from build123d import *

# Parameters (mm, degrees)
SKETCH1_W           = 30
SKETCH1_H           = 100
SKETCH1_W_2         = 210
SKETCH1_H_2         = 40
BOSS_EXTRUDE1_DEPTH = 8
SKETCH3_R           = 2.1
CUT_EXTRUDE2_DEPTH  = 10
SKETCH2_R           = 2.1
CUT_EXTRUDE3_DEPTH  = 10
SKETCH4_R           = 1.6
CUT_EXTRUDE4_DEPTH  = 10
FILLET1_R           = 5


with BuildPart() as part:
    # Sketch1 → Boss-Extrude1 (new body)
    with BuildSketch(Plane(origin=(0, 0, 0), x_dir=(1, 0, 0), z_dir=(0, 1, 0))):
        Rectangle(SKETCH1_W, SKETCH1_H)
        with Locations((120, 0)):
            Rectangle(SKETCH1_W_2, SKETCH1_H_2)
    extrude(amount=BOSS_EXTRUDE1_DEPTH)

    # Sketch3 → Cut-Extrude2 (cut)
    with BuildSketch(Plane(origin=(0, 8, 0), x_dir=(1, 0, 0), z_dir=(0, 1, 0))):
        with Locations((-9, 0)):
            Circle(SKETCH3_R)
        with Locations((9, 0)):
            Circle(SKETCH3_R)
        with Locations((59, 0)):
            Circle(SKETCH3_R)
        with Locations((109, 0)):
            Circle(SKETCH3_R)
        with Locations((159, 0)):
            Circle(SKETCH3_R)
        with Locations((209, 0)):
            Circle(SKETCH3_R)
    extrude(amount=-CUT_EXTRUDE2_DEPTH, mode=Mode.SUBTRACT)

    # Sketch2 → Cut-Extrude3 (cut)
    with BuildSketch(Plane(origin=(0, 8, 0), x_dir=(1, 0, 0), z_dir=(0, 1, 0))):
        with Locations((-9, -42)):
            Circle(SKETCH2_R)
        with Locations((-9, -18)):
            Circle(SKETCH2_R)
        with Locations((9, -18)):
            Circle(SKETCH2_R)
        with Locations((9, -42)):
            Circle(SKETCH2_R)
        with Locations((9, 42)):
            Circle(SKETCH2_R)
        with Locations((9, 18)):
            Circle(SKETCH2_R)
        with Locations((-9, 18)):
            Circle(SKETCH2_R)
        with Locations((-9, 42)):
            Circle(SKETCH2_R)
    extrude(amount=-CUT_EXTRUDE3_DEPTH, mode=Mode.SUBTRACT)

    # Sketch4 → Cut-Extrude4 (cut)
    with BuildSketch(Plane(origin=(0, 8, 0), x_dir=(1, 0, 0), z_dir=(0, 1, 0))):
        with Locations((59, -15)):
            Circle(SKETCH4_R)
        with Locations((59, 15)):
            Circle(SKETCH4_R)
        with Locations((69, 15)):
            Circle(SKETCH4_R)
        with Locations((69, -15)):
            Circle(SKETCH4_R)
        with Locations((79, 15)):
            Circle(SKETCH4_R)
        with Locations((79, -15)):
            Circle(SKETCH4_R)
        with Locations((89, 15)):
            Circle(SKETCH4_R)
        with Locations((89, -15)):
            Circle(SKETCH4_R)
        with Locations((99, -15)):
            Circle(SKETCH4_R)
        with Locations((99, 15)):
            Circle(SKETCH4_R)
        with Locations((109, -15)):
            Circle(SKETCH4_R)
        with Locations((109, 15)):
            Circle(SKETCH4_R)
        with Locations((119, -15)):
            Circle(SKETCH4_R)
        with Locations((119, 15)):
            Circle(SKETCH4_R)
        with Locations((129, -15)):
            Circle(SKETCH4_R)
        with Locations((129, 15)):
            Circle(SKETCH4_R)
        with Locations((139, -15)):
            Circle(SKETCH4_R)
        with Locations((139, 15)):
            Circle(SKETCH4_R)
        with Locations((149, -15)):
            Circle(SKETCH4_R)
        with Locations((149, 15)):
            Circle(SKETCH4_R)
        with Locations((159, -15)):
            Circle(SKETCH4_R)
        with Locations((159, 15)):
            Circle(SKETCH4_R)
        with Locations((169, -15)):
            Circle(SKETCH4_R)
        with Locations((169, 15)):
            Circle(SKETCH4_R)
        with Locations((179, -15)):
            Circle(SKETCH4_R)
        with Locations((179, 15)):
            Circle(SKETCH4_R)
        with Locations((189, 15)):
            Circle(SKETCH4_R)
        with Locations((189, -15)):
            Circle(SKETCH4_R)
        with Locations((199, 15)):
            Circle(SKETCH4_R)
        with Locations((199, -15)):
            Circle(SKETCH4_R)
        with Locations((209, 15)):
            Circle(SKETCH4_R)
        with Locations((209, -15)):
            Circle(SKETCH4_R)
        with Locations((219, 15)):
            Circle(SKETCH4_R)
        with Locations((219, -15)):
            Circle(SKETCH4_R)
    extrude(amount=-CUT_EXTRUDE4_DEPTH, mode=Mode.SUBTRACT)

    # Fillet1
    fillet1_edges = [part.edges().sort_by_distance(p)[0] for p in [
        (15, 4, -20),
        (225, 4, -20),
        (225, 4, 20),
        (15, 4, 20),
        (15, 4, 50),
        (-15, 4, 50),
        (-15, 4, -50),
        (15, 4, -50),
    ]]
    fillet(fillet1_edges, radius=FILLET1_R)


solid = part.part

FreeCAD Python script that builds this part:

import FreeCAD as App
import Part
import Sketcher
from FreeCAD import Vector


def edges_at(feature, points):
    """Names of the edges that pass closest to the given points."""
    edges = feature.Shape.Edges
    near = lambda p: min(range(len(edges)), key=lambda i: edges[i].distToShape(Part.Vertex(*p))[0])
    return sorted({f"Edge{near(p) + 1}" for p in points})

doc = App.newDocument("Part")
params = doc.addObject("Spreadsheet::Sheet", "Params")
for row, (alias, value) in enumerate([
    ("sketch1_width", "30 mm"),
    ("sketch1_width2", "210 mm"),
    ("sketch1_height", "100 mm"),
    ("pad1_length", "8 mm"),
    ("sketch2_diameter", "4.2 mm"),
    ("pocket1_length", "10 mm"),
    ("sketch3_diameter", "4.2 mm"),
    ("pocket2_length", "10 mm"),
    ("sketch4_diameter", "3.2 mm"),
    ("pocket3_length", "10 mm"),
    ("fillet_radius", "5 mm"),
], start=1):
    params.set(f"A{row}", alias)
    params.set(f"B{row}", "=" + value)
    params.setAlias(f"B{row}", alias)

body = doc.addObject("PartDesign::Body", "Body")

sketch1 = body.newObject("Sketcher::SketchObject", "Sketch")
sketch1.AttachmentSupport = (doc.getObject("XZ_Plane"), [""])
sketch1.MapMode = "FlatFace"
sketch1.addGeometry([
    Part.LineSegment(Vector(-15, -50, 0), Vector(-15, 50, 0)),
    Part.LineSegment(Vector(-15, 50, 0), Vector(15, 50, 0)),
    Part.LineSegment(Vector(15, 50, 0), Vector(15, 20, 0)),
    Part.LineSegment(Vector(15, 20, 0), Vector(225, 20, 0)),
    Part.LineSegment(Vector(225, 20, 0), Vector(225, -20, 0)),
    Part.LineSegment(Vector(225, -20, 0), Vector(15, -20, 0)),
    Part.LineSegment(Vector(15, -20, 0), Vector(15, -50, 0)),
    Part.LineSegment(Vector(15, -50, 0), Vector(-15, -50, 0)),
], False)
sketch1.addConstraint([
    Sketcher.Constraint("Coincident", 0, 2, 1, 1),
    Sketcher.Constraint("Coincident", 1, 2, 2, 1),
    Sketcher.Constraint("Coincident", 2, 2, 3, 1),
    Sketcher.Constraint("Coincident", 3, 2, 4, 1),
    Sketcher.Constraint("Coincident", 4, 2, 5, 1),
    Sketcher.Constraint("Coincident", 5, 2, 6, 1),
    Sketcher.Constraint("Coincident", 6, 2, 7, 1),
    Sketcher.Constraint("Coincident", 7, 2, 0, 1),
    Sketcher.Constraint("Vertical", 0),
    Sketcher.Constraint("Horizontal", 1),
    Sketcher.Constraint("Vertical", 2),
    Sketcher.Constraint("Horizontal", 3),
    Sketcher.Constraint("Vertical", 4),
    Sketcher.Constraint("Horizontal", 5),
    Sketcher.Constraint("Vertical", 6),
    Sketcher.Constraint("Horizontal", 7),
    Sketcher.Constraint("Symmetric", 0, 2, 6, 2, -1, 1),
    Sketcher.Constraint("Symmetric", 2, 2, 5, 2, -1),
    Sketcher.Constraint("Equal", 7, 2),
    Sketcher.Constraint("DistanceX", 1, 1, 1, 2, 30.0),
    Sketcher.Constraint("DistanceX", 3, 1, 3, 2, 210.0),
    Sketcher.Constraint("DistanceY", 0, 1, 0, 2, 100.0),
])
sketch1.setExpression("Constraints[19]", "Params.sketch1_width")
sketch1.setExpression("Constraints[20]", "Params.sketch1_width2")
sketch1.setExpression("Constraints[21]", "Params.sketch1_height")
pad1 = body.newObject("PartDesign::Pad", "Pad")
pad1.Profile = sketch1
pad1.setExpression("Length", "Params.pad1_length")
pad1.Reversed = True

sketch2 = body.newObject("Sketcher::SketchObject", "Sketch001")
sketch2.AttachmentSupport = (doc.getObject("XZ_Plane"), [""])
sketch2.MapMode = "FlatFace"
sketch2.AttachmentOffset = App.Placement(Vector(0, 0, -8), App.Rotation())
sketch2.addGeometry([
    Part.Circle(Vector(-9, 0, 0), Vector(0, 0, 1), 2.1),
    Part.Circle(Vector(9, 0, 0), Vector(0, 0, 1), 2.1),
    Part.Circle(Vector(59, 0, 0), Vector(0, 0, 1), 2.1),
    Part.Circle(Vector(109, 0, 0), Vector(0, 0, 1), 2.1),
    Part.Circle(Vector(159, 0, 0), Vector(0, 0, 1), 2.1),
    Part.Circle(Vector(209, 0, 0), Vector(0, 0, 1), 2.1),
], False)
sketch2.addConstraint([
    Sketcher.Constraint("Equal", 0, 1),
    Sketcher.Constraint("Equal", 1, 2),
    Sketcher.Constraint("Equal", 2, 3),
    Sketcher.Constraint("Equal", 3, 4),
    Sketcher.Constraint("Equal", 4, 5),
    Sketcher.Constraint("Symmetric", 0, 3, 1, 3, -1, 1),
    Sketcher.Constraint("PointOnObject", 0, 3, -1),
    Sketcher.Constraint("PointOnObject", 2, 3, -1),
    Sketcher.Constraint("PointOnObject", 3, 3, -1),
    Sketcher.Constraint("PointOnObject", 4, 3, -1),
    Sketcher.Constraint("PointOnObject", 5, 3, -1),
    Sketcher.Constraint("Diameter", 0, 4.2),
    Sketcher.Constraint("DistanceX", 0, 3, -1, 1, 9.0),
    Sketcher.Constraint("DistanceX", -1, 1, 2, 3, 59.0),
    Sketcher.Constraint("DistanceX", -1, 1, 3, 3, 109.0),
    Sketcher.Constraint("DistanceX", -1, 1, 4, 3, 159.0),
    Sketcher.Constraint("DistanceX", -1, 1, 5, 3, 209.0),
])
sketch2.setExpression("Constraints[11]", "Params.sketch2_diameter")
pocket1 = body.newObject("PartDesign::Pocket", "Pocket")
pocket1.Profile = sketch2
pocket1.setExpression("Length", "Params.pocket1_length")
pocket1.Reversed = True

sketch3 = body.newObject("Sketcher::SketchObject", "Sketch002")
sketch3.AttachmentSupport = (doc.getObject("XZ_Plane"), [""])
sketch3.MapMode = "FlatFace"
sketch3.AttachmentOffset = App.Placement(Vector(0, 0, -8), App.Rotation())
sketch3.addGeometry([
    Part.Circle(Vector(-9, 42, 0), Vector(0, 0, 1), 2.1),
    Part.Circle(Vector(-9, 18, 0), Vector(0, 0, 1), 2.1),
    Part.Circle(Vector(9, 18, 0), Vector(0, 0, 1), 2.1),
    Part.Circle(Vector(9, 42, 0), Vector(0, 0, 1), 2.1),
    Part.Circle(Vector(9, -42, 0), Vector(0, 0, 1), 2.1),
    Part.Circle(Vector(9, -18, 0), Vector(0, 0, 1), 2.1),
    Part.Circle(Vector(-9, -18, 0), Vector(0, 0, 1), 2.1),
    Part.Circle(Vector(-9, -42, 0), Vector(0, 0, 1), 2.1),
], False)
sketch3.addConstraint([
    Sketcher.Constraint("Equal", 0, 1),
    Sketcher.Constraint("Equal", 1, 2),
    Sketcher.Constraint("Equal", 2, 3),
    Sketcher.Constraint("Equal", 3, 4),
    Sketcher.Constraint("Equal", 4, 5),
    Sketcher.Constraint("Equal", 5, 6),
    Sketcher.Constraint("Equal", 6, 7),
    Sketcher.Constraint("Symmetric", 0, 3, 4, 3, -1, 1),
    Sketcher.Constraint("Symmetric", 1, 3, 5, 3, -1, 1),
    Sketcher.Constraint("Symmetric", 2, 3, 6, 3, -1, 1),
    Sketcher.Constraint("Symmetric", 3, 3, 7, 3, -1, 1),
    Sketcher.Constraint("Symmetric", 1, 3, 2, 3, -2),
    Sketcher.Constraint("Symmetric", 0, 3, 3, 3, -2),
    Sketcher.Constraint("Vertical", 0, 3, 1, 3),
    Sketcher.Constraint("Diameter", 0, 4.2),
    Sketcher.Constraint("DistanceX", 0, 3, -1, 1, 9.0),
    Sketcher.Constraint("DistanceY", -1, 1, 0, 3, 42.0),
    Sketcher.Constraint("DistanceY", -1, 1, 1, 3, 18.0),
])
sketch3.setExpression("Constraints[14]", "Params.sketch3_diameter")
pocket2 = body.newObject("PartDesign::Pocket", "Pocket001")
pocket2.Profile = sketch3
pocket2.setExpression("Length", "Params.pocket2_length")
pocket2.Reversed = True

sketch4 = body.newObject("Sketcher::SketchObject", "Sketch003")
sketch4.AttachmentSupport = (doc.getObject("XZ_Plane"), [""])
sketch4.MapMode = "FlatFace"
sketch4.AttachmentOffset = App.Placement(Vector(0, 0, -8), App.Rotation())
sketch4.addGeometry([
    Part.Circle(Vector(59, 15, 0), Vector(0, 0, 1), 1.6),
    Part.Circle(Vector(59, -15, 0), Vector(0, 0, 1), 1.6),
    Part.Circle(Vector(69, -15, 0), Vector(0, 0, 1), 1.6),
    Part.Circle(Vector(69, 15, 0), Vector(0, 0, 1), 1.6),
    Part.Circle(Vector(79, -15, 0), Vector(0, 0, 1), 1.6),
    Part.Circle(Vector(79, 15, 0), Vector(0, 0, 1), 1.6),
    Part.Circle(Vector(89, -15, 0), Vector(0, 0, 1), 1.6),
    Part.Circle(Vector(89, 15, 0), Vector(0, 0, 1), 1.6),
    Part.Circle(Vector(99, 15, 0), Vector(0, 0, 1), 1.6),
    Part.Circle(Vector(99, -15, 0), Vector(0, 0, 1), 1.6),
    Part.Circle(Vector(109, 15, 0), Vector(0, 0, 1), 1.6),
    Part.Circle(Vector(109, -15, 0), Vector(0, 0, 1), 1.6),
    Part.Circle(Vector(119, 15, 0), Vector(0, 0, 1), 1.6),
    Part.Circle(Vector(119, -15, 0), Vector(0, 0, 1), 1.6),
    Part.Circle(Vector(129, 15, 0), Vector(0, 0, 1), 1.6),
    Part.Circle(Vector(129, -15, 0), Vector(0, 0, 1), 1.6),
    Part.Circle(Vector(139, 15, 0), Vector(0, 0, 1), 1.6),
    Part.Circle(Vector(139, -15, 0), Vector(0, 0, 1), 1.6),
    Part.Circle(Vector(149, 15, 0), Vector(0, 0, 1), 1.6),
    Part.Circle(Vector(149, -15, 0), Vector(0, 0, 1), 1.6),
    Part.Circle(Vector(159, 15, 0), Vector(0, 0, 1), 1.6),
    Part.Circle(Vector(159, -15, 0), Vector(0, 0, 1), 1.6),
    Part.Circle(Vector(169, 15, 0), Vector(0, 0, 1), 1.6),
    Part.Circle(Vector(169, -15, 0), Vector(0, 0, 1), 1.6),
    Part.Circle(Vector(179, 15, 0), Vector(0, 0, 1), 1.6),
    Part.Circle(Vector(179, -15, 0), Vector(0, 0, 1), 1.6),
    Part.Circle(Vector(189, -15, 0), Vector(0, 0, 1), 1.6),
    Part.Circle(Vector(189, 15, 0), Vector(0, 0, 1), 1.6),
    Part.Circle(Vector(199, -15, 0), Vector(0, 0, 1), 1.6),
    Part.Circle(Vector(199, 15, 0), Vector(0, 0, 1), 1.6),
    Part.Circle(Vector(209, -15, 0), Vector(0, 0, 1), 1.6),
    Part.Circle(Vector(209, 15, 0), Vector(0, 0, 1), 1.6),
    Part.Circle(Vector(219, -15, 0), Vector(0, 0, 1), 1.6),
    Part.Circle(Vector(219, 15, 0), Vector(0, 0, 1), 1.6),
], False)
sketch4.addConstraint([
    Sketcher.Constraint("Equal", 0, 1),
    Sketcher.Constraint("Equal", 1, 2),
    Sketcher.Constraint("Equal", 2, 3),
    Sketcher.Constraint("Equal", 3, 4),
    Sketcher.Constraint("Equal", 4, 5),
    Sketcher.Constraint("Equal", 5, 6),
    Sketcher.Constraint("Equal", 6, 7),
    Sketcher.Constraint("Equal", 7, 8),
    Sketcher.Constraint("Equal", 8, 9),
    Sketcher.Constraint("Equal", 9, 10),
    Sketcher.Constraint("Equal", 10, 11),
    Sketcher.Constraint("Equal", 11, 12),
    Sketcher.Constraint("Equal", 12, 13),
    Sketcher.Constraint("Equal", 13, 14),
    Sketcher.Constraint("Equal", 14, 15),
    Sketcher.Constraint("Equal", 15, 16),
    Sketcher.Constraint("Equal", 16, 17),
    Sketcher.Constraint("Equal", 17, 18),
    Sketcher.Constraint("Equal", 18, 19),
    Sketcher.Constraint("Equal", 19, 20),
    Sketcher.Constraint("Equal", 20, 21),
    Sketcher.Constraint("Equal", 21, 22),
    Sketcher.Constraint("Equal", 22, 23),
    Sketcher.Constraint("Equal", 23, 24),
    Sketcher.Constraint("Equal", 24, 25),
    Sketcher.Constraint("Equal", 25, 26),
    Sketcher.Constraint("Equal", 26, 27),
    Sketcher.Constraint("Equal", 27, 28),
    Sketcher.Constraint("Equal", 28, 29),
    Sketcher.Constraint("Equal", 29, 30),
    Sketcher.Constraint("Equal", 30, 31),
    Sketcher.Constraint("Equal", 31, 32),
    Sketcher.Constraint("Equal", 32, 33),
    Sketcher.Constraint("Symmetric", 0, 3, 1, 3, -1),
    Sketcher.Constraint("Symmetric", 2, 3, 3, 3, -1),
    Sketcher.Constraint("Symmetric", 4, 3, 5, 3, -1),
    Sketcher.Constraint("Symmetric", 6, 3, 7, 3, -1),
    Sketcher.Constraint("Symmetric", 8, 3, 9, 3, -1),
    Sketcher.Constraint("Symmetric", 10, 3, 11, 3, -1),
    Sketcher.Constraint("Symmetric", 12, 3, 13, 3, -1),
    Sketcher.Constraint("Symmetric", 14, 3, 15, 3, -1),
    Sketcher.Constraint("Symmetric", 16, 3, 17, 3, -1),
    Sketcher.Constraint("Symmetric", 18, 3, 19, 3, -1),
    Sketcher.Constraint("Symmetric", 20, 3, 21, 3, -1),
    Sketcher.Constraint("Symmetric", 22, 3, 23, 3, -1),
    Sketcher.Constraint("Symmetric", 24, 3, 25, 3, -1),
    Sketcher.Constraint("Symmetric", 26, 3, 27, 3, -1),
    Sketcher.Constraint("Symmetric", 28, 3, 29, 3, -1),
    Sketcher.Constraint("Symmetric", 30, 3, 31, 3, -1),
    Sketcher.Constraint("Symmetric", 32, 3, 33, 3, -1),
    Sketcher.Constraint("Horizontal", 1, 3, 2, 3),
    Sketcher.Constraint("Horizontal", 2, 3, 4, 3),
    Sketcher.Constraint("Horizontal", 4, 3, 6, 3),
    Sketcher.Constraint("Horizontal", 7, 3, 8, 3),
    Sketcher.Constraint("Horizontal", 8, 3, 10, 3),
    Sketcher.Constraint("Horizontal", 10, 3, 12, 3),
    Sketcher.Constraint("Horizontal", 12, 3, 14, 3),
    Sketcher.Constraint("Horizontal", 14, 3, 16, 3),
    Sketcher.Constraint("Horizontal", 16, 3, 18, 3),
    Sketcher.Constraint("Horizontal", 18, 3, 20, 3),
    Sketcher.Constraint("Horizontal", 20, 3, 22, 3),
    Sketcher.Constraint("Horizontal", 22, 3, 24, 3),
    Sketcher.Constraint("Horizontal", 25, 3, 26, 3),
    Sketcher.Constraint("Horizontal", 26, 3, 28, 3),
    Sketcher.Constraint("Horizontal", 28, 3, 30, 3),
    Sketcher.Constraint("Horizontal", 30, 3, 32, 3),
    Sketcher.Constraint("Diameter", 0, 3.2),
    Sketcher.Constraint("DistanceX", -1, 1, 0, 3, 59.0),
    Sketcher.Constraint("DistanceY", -1, 1, 0, 3, 15.0),
    Sketcher.Constraint("DistanceX", -1, 1, 2, 3, 69.0),
    Sketcher.Constraint("DistanceX", -1, 1, 4, 3, 79.0),
    Sketcher.Constraint("DistanceX", -1, 1, 6, 3, 89.0),
    Sketcher.Constraint("DistanceX", -1, 1, 8, 3, 99.0),
    Sketcher.Constraint("DistanceX", -1, 1, 10, 3, 109.0),
    Sketcher.Constraint("DistanceX", -1, 1, 12, 3, 119.0),
    Sketcher.Constraint("DistanceX", -1, 1, 14, 3, 129.0),
    Sketcher.Constraint("DistanceX", -1, 1, 16, 3, 139.0),
    Sketcher.Constraint("DistanceX", -1, 1, 18, 3, 149.0),
    Sketcher.Constraint("DistanceX", -1, 1, 20, 3, 159.0),
    Sketcher.Constraint("DistanceX", -1, 1, 22, 3, 169.0),
    Sketcher.Constraint("DistanceX", -1, 1, 24, 3, 179.0),
    Sketcher.Constraint("DistanceX", -1, 1, 26, 3, 189.0),
    Sketcher.Constraint("DistanceX", -1, 1, 28, 3, 199.0),
    Sketcher.Constraint("DistanceX", -1, 1, 30, 3, 209.0),
    Sketcher.Constraint("DistanceX", -1, 1, 32, 3, 219.0),
])
sketch4.setExpression("Constraints[66]", "Params.sketch4_diameter")
pocket3 = body.newObject("PartDesign::Pocket", "Pocket002")
pocket3.Profile = sketch4
pocket3.setExpression("Length", "Params.pocket3_length")
pocket3.Reversed = True
doc.recompute()

fillet = body.newObject("PartDesign::Fillet", "Fillet")
fillet.Base = (pocket3, edges_at(pocket3, [
    (15, 4, -20),
    (225, 4, -20),
    (225, 4, 20),
    (15, 4, 20),
    (15, 4, 50),
    (-15, 4, 50),
    (-15, 4, -50),
    (15, 4, -50),
]))
fillet.setExpression("Radius", "Params.fillet_radius")

doc.recompute()
